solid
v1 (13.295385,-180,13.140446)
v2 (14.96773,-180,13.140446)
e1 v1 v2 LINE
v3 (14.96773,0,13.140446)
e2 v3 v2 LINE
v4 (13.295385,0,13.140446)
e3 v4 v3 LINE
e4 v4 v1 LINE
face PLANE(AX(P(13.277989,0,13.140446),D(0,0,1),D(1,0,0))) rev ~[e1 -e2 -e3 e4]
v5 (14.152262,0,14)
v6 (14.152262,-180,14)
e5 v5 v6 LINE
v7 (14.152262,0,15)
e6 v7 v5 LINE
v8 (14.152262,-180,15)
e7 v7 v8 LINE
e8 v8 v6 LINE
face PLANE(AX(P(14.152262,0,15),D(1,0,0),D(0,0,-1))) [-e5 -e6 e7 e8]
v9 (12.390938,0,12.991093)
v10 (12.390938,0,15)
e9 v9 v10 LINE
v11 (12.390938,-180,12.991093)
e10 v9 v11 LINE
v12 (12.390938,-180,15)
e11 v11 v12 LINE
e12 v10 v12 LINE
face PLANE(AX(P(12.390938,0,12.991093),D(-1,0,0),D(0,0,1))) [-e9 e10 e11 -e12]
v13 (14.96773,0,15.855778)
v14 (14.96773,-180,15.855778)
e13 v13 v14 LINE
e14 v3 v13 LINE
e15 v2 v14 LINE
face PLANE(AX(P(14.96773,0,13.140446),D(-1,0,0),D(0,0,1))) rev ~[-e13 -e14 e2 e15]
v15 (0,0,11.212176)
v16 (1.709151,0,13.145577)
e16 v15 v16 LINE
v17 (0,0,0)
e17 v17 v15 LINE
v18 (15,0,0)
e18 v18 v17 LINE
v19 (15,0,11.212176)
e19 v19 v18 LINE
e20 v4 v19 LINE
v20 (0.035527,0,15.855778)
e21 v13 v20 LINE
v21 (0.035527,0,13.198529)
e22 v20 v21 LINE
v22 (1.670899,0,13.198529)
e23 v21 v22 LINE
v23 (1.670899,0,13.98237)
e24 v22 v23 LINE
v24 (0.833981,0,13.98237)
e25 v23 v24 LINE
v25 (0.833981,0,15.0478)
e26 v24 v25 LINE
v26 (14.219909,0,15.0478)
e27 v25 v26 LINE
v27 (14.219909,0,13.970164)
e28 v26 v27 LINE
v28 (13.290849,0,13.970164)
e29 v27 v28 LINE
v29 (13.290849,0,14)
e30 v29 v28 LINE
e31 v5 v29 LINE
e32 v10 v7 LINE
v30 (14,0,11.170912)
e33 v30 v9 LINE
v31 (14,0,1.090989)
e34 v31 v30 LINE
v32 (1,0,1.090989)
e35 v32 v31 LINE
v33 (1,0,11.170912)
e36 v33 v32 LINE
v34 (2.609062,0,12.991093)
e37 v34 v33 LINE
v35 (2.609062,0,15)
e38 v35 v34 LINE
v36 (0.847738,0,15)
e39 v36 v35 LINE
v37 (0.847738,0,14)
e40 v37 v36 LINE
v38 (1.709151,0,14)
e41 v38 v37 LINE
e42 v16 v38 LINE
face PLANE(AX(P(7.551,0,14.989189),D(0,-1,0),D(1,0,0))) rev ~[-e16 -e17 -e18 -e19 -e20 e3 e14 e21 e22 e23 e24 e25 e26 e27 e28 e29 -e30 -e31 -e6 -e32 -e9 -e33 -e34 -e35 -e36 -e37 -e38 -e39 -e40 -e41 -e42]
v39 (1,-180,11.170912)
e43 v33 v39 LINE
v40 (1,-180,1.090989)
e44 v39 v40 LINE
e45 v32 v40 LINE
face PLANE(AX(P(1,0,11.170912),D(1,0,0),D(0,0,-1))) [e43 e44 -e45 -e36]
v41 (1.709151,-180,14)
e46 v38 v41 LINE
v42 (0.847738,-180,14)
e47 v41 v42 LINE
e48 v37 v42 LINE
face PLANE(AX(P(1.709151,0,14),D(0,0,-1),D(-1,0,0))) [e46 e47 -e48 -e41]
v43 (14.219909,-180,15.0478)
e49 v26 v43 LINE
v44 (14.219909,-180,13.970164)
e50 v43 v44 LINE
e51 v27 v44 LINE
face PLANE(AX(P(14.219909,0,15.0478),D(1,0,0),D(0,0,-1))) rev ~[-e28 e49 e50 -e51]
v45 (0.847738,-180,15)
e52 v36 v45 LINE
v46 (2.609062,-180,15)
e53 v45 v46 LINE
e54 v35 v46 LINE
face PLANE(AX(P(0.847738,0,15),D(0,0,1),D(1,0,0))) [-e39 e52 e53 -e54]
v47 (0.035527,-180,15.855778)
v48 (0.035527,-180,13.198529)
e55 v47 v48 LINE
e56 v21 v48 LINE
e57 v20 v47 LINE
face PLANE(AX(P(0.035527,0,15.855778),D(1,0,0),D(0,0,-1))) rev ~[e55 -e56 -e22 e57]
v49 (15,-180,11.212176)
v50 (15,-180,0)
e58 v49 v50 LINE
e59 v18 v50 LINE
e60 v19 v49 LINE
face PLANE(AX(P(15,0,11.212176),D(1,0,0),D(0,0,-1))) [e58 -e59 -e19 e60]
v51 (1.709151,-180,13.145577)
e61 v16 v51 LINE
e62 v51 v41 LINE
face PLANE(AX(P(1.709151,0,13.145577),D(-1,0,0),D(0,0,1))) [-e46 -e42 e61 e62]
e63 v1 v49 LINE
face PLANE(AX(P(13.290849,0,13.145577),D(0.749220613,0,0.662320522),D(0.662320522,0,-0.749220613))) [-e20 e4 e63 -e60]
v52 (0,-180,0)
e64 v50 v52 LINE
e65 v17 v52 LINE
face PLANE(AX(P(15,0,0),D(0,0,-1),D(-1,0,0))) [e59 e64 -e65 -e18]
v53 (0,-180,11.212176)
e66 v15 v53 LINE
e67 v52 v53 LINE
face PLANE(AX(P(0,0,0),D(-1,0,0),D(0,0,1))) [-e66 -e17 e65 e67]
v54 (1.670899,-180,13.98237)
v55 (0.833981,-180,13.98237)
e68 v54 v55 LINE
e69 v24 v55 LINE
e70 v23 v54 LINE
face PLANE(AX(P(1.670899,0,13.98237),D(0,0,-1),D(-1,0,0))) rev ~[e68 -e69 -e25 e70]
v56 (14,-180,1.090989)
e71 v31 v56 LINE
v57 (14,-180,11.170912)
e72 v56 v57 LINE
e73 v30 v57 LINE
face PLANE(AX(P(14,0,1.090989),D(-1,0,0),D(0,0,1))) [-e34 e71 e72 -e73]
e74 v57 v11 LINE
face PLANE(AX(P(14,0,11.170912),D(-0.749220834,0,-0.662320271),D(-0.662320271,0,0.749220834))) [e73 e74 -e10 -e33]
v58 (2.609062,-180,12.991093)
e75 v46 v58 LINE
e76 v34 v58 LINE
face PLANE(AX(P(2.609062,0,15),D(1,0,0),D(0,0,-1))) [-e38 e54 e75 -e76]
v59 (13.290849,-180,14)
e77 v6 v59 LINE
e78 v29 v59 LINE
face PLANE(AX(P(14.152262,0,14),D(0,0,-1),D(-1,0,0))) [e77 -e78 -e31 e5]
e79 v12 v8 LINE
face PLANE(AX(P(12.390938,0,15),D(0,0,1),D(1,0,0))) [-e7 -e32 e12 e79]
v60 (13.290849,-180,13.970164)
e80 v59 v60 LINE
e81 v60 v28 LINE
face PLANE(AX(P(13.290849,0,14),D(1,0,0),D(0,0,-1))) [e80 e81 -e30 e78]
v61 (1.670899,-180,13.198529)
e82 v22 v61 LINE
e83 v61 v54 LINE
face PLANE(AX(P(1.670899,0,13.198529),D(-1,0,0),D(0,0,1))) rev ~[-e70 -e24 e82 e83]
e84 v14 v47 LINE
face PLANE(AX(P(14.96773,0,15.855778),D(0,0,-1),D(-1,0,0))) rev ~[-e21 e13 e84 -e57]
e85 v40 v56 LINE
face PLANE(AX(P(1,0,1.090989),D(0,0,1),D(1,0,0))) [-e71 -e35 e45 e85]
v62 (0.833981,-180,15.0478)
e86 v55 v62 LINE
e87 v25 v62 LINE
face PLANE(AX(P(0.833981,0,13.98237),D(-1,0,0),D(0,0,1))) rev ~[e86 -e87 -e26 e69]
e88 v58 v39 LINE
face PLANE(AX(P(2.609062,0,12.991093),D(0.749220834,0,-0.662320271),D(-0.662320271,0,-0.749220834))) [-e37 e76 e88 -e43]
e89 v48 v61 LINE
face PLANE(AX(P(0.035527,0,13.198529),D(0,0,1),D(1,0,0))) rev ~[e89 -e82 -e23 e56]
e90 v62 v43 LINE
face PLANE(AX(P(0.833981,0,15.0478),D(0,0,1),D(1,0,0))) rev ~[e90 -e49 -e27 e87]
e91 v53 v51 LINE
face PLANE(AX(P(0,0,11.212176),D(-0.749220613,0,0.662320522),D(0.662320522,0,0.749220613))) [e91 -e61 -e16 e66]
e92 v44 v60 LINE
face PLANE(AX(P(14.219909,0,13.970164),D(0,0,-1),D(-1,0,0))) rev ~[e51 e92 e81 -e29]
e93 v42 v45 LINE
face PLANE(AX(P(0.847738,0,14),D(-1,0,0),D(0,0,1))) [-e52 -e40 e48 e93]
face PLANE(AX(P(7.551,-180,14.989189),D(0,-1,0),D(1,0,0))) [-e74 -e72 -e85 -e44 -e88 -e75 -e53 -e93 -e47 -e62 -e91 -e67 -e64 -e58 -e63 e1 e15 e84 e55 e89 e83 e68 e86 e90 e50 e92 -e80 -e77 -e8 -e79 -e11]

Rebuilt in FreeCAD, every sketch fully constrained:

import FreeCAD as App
import Part
import Sketcher

V = App.Vector

doc = App.newDocument("Part")
body = doc.addObject("PartDesign::Body", "Body")

# Sketch on XZ plane
sketch1 = doc.addObject("Sketcher::SketchObject", "Sketch")
body.addObject(sketch1)
sketch1.AttachmentSupport = (doc.XZ_Plane, [""])
sketch1.MapMode = "FlatFace"
sketch1.addGeometry([
    Part.LineSegment(V(0.8, 14, 0), V(1.7, 14, 0)),  # 0
    Part.LineSegment(V(1.7, 14, 0), V(1.7, 13.1, 0)),  # 1
    Part.LineSegment(V(1.7, 13.1, 0), V(0, 11.2, 0)),  # 2
    Part.LineSegment(V(0, 11.2, 0), V(0, 0, 0)),  # 3
    Part.LineSegment(V(0, 0, 0), V(15, 0, 0)),  # 4
    Part.LineSegment(V(15, 0, 0), V(15, 11.2, 0)),  # 5
    Part.LineSegment(V(15, 11.2, 0), V(13.3, 13.1, 0)),  # 6
    Part.LineSegment(V(13.3, 13.1, 0), V(13.3, 14, 0)),  # 7
    Part.LineSegment(V(13.3, 14, 0), V(14.2, 14, 0)),  # 8
    Part.LineSegment(V(14.2, 14, 0), V(14.2, 15, 0)),  # 9
    Part.LineSegment(V(14.2, 15, 0), V(12.4, 15, 0)),  # 10
    Part.LineSegment(V(12.4, 15, 0), V(12.4, 13, 0)),  # 11
    Part.LineSegment(V(12.4, 13, 0), V(14, 11.2, 0)),  # 12
    Part.LineSegment(V(14, 11.2, 0), V(14, 1.1, 0)),  # 13
    Part.LineSegment(V(14, 1.1, 0), V(1, 1.1, 0)),  # 14
    Part.LineSegment(V(1, 1.1, 0), V(1, 11.2, 0)),  # 15
    Part.LineSegment(V(1, 11.2, 0), V(2.6, 13, 0)),  # 16
    Part.LineSegment(V(2.6, 13, 0), V(2.6, 15, 0)),  # 17
    Part.LineSegment(V(2.6, 15, 0), V(0.8, 15, 0)),  # 18
    Part.LineSegment(V(0.8, 15, 0), V(0.8, 14, 0)),  # 19
], False)
sketch1.addConstraint([
    Sketcher.Constraint("Coincident", 0, 2, 1, 1),
    Sketcher.Constraint("Coincident", 1, 2, 2, 1),
    Sketcher.Constraint("Coincident", 2, 2, 3, 1),
    Sketcher.Constraint("Coincident", 3, 2, 4, 1),
    Sketcher.Constraint("Coincident", 4, 2, 5, 1),
    Sketcher.Constraint("Coincident", 5, 2, 6, 1),
    Sketcher.Constraint("Coincident", 6, 2, 7, 1),
    Sketcher.Constraint("Coincident", 7, 2, 8, 1),
    Sketcher.Constraint("Coincident", 8, 2, 9, 1),
    Sketcher.Constraint("Coincident", 9, 2, 10, 1),
    Sketcher.Constraint("Coincident", 10, 2, 11, 1),
    Sketcher.Constraint("Coincident", 11, 2, 12, 1),
    Sketcher.Constraint("Coincident", 12, 2, 13, 1),
    Sketcher.Constraint("Coincident", 13, 2, 14, 1),
    Sketcher.Constraint("Coincident", 14, 2, 15, 1),
    Sketcher.Constraint("Coincident", 15, 2, 16, 1),
    Sketcher.Constraint("Coincident", 16, 2, 17, 1),
    Sketcher.Constraint("Coincident", 17, 2, 18, 1),
    Sketcher.Constraint("Coincident", 18, 2, 19, 1),
    Sketcher.Constraint("Coincident", 19, 2, 0, 1),
    Sketcher.Constraint("Horizontal", 0),
    Sketcher.Constraint("Vertical", 1),
    Sketcher.Constraint("Vertical", 3),
    Sketcher.Constraint("Horizontal", 4),
    Sketcher.Constraint("Vertical", 5),
    Sketcher.Constraint("Vertical", 7),
    Sketcher.Constraint("Horizontal", 8),
    Sketcher.Constraint("Vertical", 9),
    Sketcher.Constraint("Horizontal", 10),
    Sketcher.Constraint("Vertical", 11),
    Sketcher.Constraint("Vertical", 13),
    Sketcher.Constraint("Horizontal", 14),
    Sketcher.Constraint("Vertical", 15),
    Sketcher.Constraint("Vertical", 17),
    Sketcher.Constraint("Horizontal", 18),
    Sketcher.Constraint("Vertical", 19),
    Sketcher.Constraint("Coincident", 3, 2, -1, 1),
    Sketcher.Constraint("Parallel", 6, 12),
    Sketcher.Constraint("Parallel", 2, 16),
    Sketcher.Constraint("Horizontal", 2, 2, 5, 2),
    Sketcher.Constraint("Horizontal", 1, 2, 6, 2),
    Sketcher.Constraint("Horizontal", 0, 2, 7, 2),
    Sketcher.Constraint("Horizontal", 12, 2, 15, 2),
    Sketcher.Constraint("Horizontal", 11, 2, 16, 2),
    Sketcher.Constraint("Horizontal", 10, 2, 17, 2),
    Sketcher.Constraint("Equal", 0, 8),
    Sketcher.Constraint("Equal", 10, 18),
    Sketcher.Constraint("Equal", 2, 6),
    Sketcher.Constraint("DistanceX", 4, 1, 4, 2, 15.0),
    Sketcher.Constraint("DistanceX", 14, 2, 14, 1, 13.0),
    Sketcher.Constraint("DistanceY", 9, 1, 9, 2, 1.0),
    Sketcher.Constraint("DistanceY", -1, 1, 0, 2, 14.0),
    Sketcher.Constraint("DistanceY", 2, 2, 1, 2, 1.933401),
    Sketcher.Constraint("Distance", 2, 2.58055),
    Sketcher.Constraint("Distance", 12, 2.429432),
    Sketcher.Constraint("DistanceX", 0, 1, 0, 2, 0.861413),
    Sketcher.Constraint("DistanceY", 1, 2, 1, 1, 0.854423),
    Sketcher.Constraint("DistanceY", 11, 2, 11, 1, 2.008907),
    Sketcher.Constraint("DistanceY", 13, 2, 13, 1, 10.079923),
])
pad1 = doc.addObject("PartDesign::Pad", "Pad")
body.addObject(pad1)
pad1.Profile = sketch1
pad1.Length = 180

# Sketch on XZ plane
sketch2 = doc.addObject("Sketcher::SketchObject", "Sketch001")
body.addObject(sketch2)
sketch2.AttachmentSupport = (doc.XZ_Plane, [""])
sketch2.MapMode = "FlatFace"
sketch2.addGeometry([
    Part.LineSegment(V(1.7, 14, 0), V(0.8, 14, 0)),  # 0
    Part.LineSegment(V(0.8, 14, 0), V(0.8, 15, 0)),  # 1
    Part.LineSegment(V(0.8, 15, 0), V(14.2, 15, 0)),  # 2
    Part.LineSegment(V(14.2, 15, 0), V(14.2, 14, 0)),  # 3
    Part.LineSegment(V(14.2, 14, 0), V(13.3, 14, 0)),  # 4
    Part.LineSegment(V(13.3, 14, 0), V(13.3, 13.1, 0)),  # 5
    Part.LineSegment(V(13.3, 13.1, 0), V(15, 13.1, 0)),  # 6
    Part.LineSegment(V(15, 13.1, 0), V(15, 15.9, 0)),  # 7
    Part.LineSegment(V(15, 15.9, 0), V(0, 15.9, 0)),  # 8
    Part.LineSegment(V(0, 15.9, 0), V(0, 13.2, 0)),  # 9
    Part.LineSegment(V(0, 13.2, 0), V(1.7, 13.2, 0)),  # 10
    Part.LineSegment(V(1.7, 13.2, 0), V(1.7, 14, 0)),  # 11
], False)
sketch2.addConstraint([
    Sketcher.Constraint("Coincident", 0, 2, 1, 1),
    Sketcher.Constraint("Coincident", 1, 2, 2, 1),
    Sketcher.Constraint("Coincident", 2, 2, 3, 1),
    Sketcher.Constraint("Coincident", 3, 2, 4, 1),
    Sketcher.Constraint("Coincident", 4, 2, 5, 1),
    Sketcher.Constraint("Coincident", 5, 2, 6, 1),
    Sketcher.Constraint("Coincident", 6, 2, 7, 1),
    Sketcher.Constraint("Coincident", 7, 2, 8, 1),
    Sketcher.Constraint("Coincident", 8, 2, 9, 1),
    Sketcher.Constraint("Coincident", 9, 2, 10, 1),
    Sketcher.Constraint("Coincident", 10, 2, 11, 1),
    Sketcher.Constraint("Coincident", 11, 2, 0, 1),
    Sketcher.Constraint("Horizontal", 0),
    Sketcher.Constraint("Vertical", 1),
    Sketcher.Constraint("Horizontal", 2),
    Sketcher.Constraint("Vertical", 3),
    Sketcher.Constraint("Horizontal", 4),
    Sketcher.Constraint("Vertical", 5),
    Sketcher.Constraint("Horizontal", 6),
    Sketcher.Constraint("Vertical", 7),
    Sketcher.Constraint("Horizontal", 8),
    Sketcher.Constraint("Vertical", 9),
    Sketcher.Constraint("Horizontal", 10),
    Sketcher.Constraint("Vertical", 11),
    Sketcher.Constraint("DistanceX", 4, 2, 4, 1, 0.94192),
    Sketcher.Constraint("DistanceX", 6, 1, 6, 2, 1.689741),
    Sketcher.Constraint("DistanceX", 10, 1, 10, 2, 1.635372),
    Sketcher.Constraint("DistanceY", 1, 1, 1, 2, 1.06543),
    Sketcher.Constraint("DistanceY", 9, 2, 9, 1, 2.657249),
    Sketcher.Constraint("DistanceY", 11, 1, 11, 2, 0.783841),
    Sketcher.Constraint("DistanceY", -1, 1, 1, 2, 15.0478),
    Sketcher.Constraint("DistanceX", -1, 1, 10, 2, 1.670899),
    Sketcher.Constraint("DistanceX", 0, 2, 0, 1, 0.836918),
    Sketcher.Constraint("DistanceX", 2, 1, 2, 2, 13.385928),
    Sketcher.Constraint("DistanceY", 3, 2, 3, 1, 1.077636),
    Sketcher.Constraint("DistanceY", 5, 2, 5, 1, 0.829718),
])
pad2 = doc.addObject("PartDesign::Pad", "Pad001")
body.addObject(pad2)
pad2.Profile = sketch2
pad2.Length = 180

doc.recompute()
